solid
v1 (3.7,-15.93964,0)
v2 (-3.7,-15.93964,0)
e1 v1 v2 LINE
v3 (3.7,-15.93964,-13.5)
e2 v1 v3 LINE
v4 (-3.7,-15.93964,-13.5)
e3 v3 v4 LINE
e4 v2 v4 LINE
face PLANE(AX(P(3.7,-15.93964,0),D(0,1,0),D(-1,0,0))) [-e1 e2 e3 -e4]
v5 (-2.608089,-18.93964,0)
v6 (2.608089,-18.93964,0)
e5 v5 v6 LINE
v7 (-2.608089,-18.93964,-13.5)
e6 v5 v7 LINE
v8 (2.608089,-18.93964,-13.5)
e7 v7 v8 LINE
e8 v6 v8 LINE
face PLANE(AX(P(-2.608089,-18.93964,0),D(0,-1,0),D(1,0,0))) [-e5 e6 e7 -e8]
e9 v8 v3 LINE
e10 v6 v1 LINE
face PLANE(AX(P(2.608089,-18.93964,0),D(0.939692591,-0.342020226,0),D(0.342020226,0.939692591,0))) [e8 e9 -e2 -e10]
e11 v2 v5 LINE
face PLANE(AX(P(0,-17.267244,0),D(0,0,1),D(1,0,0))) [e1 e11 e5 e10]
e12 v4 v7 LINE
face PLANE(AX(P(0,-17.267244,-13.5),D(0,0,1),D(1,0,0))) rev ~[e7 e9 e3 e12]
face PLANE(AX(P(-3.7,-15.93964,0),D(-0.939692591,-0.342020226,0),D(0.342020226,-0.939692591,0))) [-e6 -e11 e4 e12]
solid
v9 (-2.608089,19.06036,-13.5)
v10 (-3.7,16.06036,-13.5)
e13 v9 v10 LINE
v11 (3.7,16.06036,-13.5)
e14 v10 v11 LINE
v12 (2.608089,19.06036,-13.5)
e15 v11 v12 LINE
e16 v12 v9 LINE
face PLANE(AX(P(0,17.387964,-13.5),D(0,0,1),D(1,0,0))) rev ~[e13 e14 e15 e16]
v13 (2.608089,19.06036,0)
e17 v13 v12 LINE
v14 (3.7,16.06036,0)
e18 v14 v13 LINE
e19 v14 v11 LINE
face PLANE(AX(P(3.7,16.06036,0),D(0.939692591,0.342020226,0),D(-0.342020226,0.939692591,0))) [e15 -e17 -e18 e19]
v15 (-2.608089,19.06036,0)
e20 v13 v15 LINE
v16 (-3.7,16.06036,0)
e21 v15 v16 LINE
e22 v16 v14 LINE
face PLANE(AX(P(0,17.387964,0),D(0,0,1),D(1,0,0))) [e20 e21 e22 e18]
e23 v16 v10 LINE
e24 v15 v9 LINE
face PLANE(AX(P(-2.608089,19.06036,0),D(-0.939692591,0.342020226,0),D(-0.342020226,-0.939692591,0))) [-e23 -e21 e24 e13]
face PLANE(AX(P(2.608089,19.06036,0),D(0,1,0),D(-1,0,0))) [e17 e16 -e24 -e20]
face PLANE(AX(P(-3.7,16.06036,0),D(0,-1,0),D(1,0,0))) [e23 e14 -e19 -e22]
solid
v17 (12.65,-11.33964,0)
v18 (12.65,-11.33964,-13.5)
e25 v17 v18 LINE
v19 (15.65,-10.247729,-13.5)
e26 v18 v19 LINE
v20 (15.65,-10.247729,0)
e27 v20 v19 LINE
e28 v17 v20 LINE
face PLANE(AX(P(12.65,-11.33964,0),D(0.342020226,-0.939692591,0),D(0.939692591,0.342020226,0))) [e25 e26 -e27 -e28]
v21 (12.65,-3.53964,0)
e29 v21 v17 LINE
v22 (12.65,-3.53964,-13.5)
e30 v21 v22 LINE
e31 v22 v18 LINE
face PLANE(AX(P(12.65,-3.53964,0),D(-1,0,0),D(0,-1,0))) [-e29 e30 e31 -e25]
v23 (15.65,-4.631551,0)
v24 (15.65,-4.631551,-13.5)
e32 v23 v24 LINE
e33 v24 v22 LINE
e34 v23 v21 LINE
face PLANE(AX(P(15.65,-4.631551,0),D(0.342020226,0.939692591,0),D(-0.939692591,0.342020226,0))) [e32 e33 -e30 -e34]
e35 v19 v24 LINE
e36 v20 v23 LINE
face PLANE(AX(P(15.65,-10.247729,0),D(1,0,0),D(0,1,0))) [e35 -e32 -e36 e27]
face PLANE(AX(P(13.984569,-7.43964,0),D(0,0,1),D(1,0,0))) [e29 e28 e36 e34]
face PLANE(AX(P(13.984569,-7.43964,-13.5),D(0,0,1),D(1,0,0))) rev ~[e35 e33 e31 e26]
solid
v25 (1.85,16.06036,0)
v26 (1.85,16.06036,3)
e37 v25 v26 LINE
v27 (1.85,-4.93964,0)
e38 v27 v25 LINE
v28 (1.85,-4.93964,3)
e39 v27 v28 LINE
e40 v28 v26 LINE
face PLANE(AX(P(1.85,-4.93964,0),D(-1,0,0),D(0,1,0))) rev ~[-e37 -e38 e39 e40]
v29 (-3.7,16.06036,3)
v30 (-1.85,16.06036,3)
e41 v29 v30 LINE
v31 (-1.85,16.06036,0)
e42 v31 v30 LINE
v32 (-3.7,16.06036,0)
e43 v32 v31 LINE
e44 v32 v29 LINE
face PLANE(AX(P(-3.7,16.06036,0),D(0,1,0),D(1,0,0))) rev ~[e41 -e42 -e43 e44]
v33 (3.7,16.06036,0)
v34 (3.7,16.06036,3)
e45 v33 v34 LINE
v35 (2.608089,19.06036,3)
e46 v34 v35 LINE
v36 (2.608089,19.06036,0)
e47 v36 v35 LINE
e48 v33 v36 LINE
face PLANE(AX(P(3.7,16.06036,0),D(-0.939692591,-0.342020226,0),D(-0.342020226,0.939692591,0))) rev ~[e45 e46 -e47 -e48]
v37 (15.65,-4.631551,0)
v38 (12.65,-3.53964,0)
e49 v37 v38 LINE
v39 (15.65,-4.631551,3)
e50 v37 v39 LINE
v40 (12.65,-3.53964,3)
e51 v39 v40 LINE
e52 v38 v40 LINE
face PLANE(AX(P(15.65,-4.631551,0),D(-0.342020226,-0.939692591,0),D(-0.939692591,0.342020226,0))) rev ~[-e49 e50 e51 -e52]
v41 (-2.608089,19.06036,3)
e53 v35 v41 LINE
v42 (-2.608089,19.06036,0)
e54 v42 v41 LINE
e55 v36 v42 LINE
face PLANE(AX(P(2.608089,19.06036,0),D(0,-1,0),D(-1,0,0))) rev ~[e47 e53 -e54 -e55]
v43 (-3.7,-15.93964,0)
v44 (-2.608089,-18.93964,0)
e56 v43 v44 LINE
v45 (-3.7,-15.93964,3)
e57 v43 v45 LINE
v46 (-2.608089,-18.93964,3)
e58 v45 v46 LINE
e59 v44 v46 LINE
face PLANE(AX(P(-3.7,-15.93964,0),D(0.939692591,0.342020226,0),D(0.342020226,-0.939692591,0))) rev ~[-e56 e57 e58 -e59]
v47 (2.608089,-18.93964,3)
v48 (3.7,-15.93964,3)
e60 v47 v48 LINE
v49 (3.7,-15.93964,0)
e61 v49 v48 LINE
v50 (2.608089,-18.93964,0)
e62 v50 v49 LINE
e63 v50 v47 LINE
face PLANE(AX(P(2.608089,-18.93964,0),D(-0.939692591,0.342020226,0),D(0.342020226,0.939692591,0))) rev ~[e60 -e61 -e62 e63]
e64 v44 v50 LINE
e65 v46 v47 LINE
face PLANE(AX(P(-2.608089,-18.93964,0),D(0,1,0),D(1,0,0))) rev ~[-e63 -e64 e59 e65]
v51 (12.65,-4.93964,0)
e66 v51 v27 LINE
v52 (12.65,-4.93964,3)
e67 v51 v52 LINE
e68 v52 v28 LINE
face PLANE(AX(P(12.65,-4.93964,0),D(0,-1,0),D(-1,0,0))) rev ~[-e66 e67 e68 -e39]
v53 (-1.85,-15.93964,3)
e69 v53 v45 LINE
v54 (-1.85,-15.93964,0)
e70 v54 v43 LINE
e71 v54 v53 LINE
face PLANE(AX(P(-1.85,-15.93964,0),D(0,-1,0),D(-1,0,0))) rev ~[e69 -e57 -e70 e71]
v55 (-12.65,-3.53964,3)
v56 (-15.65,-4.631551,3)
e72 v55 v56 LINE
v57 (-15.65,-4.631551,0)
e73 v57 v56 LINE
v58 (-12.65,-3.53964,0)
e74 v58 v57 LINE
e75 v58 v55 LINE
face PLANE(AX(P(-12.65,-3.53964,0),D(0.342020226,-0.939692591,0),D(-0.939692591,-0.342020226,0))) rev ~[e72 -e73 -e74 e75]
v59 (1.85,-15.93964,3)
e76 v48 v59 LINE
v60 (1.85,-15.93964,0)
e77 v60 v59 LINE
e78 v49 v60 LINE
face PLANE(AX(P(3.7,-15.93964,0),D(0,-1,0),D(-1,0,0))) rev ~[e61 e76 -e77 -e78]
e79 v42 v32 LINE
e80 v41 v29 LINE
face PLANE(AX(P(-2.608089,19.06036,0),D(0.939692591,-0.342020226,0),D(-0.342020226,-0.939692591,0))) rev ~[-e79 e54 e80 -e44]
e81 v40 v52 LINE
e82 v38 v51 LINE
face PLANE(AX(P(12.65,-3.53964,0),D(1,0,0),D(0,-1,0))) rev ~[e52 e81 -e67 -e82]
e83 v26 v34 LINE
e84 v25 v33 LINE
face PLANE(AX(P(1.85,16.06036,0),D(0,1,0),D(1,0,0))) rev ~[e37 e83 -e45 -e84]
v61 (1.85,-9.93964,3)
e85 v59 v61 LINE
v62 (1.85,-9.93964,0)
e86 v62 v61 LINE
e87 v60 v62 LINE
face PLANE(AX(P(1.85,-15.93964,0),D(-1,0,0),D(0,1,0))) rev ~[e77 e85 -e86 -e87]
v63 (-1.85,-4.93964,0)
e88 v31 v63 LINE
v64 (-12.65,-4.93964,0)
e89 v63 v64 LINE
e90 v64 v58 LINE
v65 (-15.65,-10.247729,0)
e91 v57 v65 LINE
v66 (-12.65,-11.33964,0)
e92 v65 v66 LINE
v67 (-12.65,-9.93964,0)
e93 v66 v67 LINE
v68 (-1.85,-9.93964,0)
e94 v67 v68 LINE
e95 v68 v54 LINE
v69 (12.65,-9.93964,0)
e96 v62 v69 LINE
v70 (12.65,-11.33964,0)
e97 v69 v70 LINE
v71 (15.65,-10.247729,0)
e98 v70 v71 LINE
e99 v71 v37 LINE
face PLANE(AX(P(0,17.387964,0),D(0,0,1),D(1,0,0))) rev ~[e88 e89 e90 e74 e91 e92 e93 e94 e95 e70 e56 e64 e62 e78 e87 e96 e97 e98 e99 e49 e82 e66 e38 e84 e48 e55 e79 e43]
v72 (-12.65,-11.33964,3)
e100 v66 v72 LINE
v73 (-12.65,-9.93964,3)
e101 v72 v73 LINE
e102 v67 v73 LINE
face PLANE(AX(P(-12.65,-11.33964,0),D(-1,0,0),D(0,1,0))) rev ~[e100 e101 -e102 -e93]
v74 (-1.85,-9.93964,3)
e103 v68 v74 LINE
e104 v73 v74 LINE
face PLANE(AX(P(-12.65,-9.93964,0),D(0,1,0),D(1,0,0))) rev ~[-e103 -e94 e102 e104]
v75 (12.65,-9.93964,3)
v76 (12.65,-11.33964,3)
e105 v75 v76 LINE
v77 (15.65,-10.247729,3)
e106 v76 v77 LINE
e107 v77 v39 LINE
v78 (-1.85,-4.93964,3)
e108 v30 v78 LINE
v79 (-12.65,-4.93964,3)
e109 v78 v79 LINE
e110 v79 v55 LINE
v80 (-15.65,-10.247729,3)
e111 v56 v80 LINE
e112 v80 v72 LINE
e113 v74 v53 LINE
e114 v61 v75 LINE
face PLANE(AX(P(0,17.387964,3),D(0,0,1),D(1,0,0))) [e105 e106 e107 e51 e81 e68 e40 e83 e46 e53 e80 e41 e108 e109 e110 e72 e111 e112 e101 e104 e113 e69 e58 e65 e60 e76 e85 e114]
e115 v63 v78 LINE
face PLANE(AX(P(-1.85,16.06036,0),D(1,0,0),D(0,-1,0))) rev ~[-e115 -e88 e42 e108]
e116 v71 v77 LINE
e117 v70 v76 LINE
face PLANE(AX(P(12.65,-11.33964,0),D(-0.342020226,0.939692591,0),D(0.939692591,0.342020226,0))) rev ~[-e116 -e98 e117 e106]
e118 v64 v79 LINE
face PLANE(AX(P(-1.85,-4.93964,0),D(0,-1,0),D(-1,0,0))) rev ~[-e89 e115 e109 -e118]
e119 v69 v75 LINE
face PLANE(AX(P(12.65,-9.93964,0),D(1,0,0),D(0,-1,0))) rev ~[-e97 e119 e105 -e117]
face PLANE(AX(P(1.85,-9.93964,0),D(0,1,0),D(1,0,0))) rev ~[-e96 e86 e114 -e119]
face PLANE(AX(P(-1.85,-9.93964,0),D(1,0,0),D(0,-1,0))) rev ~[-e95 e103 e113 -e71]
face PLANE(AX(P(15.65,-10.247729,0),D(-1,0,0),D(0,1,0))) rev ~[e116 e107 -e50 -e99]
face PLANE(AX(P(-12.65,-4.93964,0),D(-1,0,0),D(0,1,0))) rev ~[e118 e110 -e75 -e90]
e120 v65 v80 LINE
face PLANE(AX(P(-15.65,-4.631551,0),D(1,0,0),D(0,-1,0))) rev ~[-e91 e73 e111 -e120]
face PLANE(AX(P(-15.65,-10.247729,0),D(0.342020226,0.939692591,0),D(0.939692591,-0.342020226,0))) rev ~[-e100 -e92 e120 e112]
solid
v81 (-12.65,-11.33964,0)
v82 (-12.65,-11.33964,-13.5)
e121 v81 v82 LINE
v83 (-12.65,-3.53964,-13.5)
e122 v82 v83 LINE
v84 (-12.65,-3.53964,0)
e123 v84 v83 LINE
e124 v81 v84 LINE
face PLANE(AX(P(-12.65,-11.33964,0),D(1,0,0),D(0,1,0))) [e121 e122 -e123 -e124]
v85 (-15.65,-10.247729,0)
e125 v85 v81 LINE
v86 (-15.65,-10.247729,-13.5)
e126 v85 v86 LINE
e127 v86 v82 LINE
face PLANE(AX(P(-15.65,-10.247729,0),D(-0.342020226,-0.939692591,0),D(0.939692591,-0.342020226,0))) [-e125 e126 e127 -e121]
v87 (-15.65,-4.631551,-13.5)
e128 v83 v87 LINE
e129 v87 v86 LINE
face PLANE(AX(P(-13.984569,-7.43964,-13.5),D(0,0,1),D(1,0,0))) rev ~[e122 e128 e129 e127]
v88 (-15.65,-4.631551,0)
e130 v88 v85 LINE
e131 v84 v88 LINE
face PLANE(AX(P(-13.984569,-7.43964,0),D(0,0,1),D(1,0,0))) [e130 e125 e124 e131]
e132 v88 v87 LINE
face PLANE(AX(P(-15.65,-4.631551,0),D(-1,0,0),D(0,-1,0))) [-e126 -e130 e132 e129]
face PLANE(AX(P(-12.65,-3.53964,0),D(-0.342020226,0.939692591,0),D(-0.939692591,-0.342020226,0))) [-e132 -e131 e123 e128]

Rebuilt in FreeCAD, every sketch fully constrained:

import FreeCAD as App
import Part
import Sketcher

V = App.Vector
Q = App.Units.Quantity


def add_polygon(sketch, points):
    """Adds a closed chain of lines whose ends are joined by coincident constraints."""
    first, n = sketch.GeometryCount, len(points)
    for a, b in zip(points, points[1:] + points[:1]):
        sketch.addGeometry(Part.LineSegment(App.Vector(*a, 0), App.Vector(*b, 0)), False)
    for i in range(n):
        sketch.addConstraint(Sketcher.Constraint("Coincident", first + i, 2, first + (i + 1) % n, 1))

doc = App.newDocument("Part")
params = doc.addObject("Spreadsheet::Sheet", "Params")
for row, (alias, value) in enumerate([
    ("sketch1_width", "7.4 mm"),
    ("sketch1_height", "7.8 mm"),
    ("pad1_length", "13.5 mm"),
    ("sketch2_height", "21 mm"),
    ("sketch2_height2", "6 mm"),
    ("sketch2_width", "10.8 mm"),
    ("sketch2_height3", "1.4 mm"),
    ("sketch2_width2", "1.85 mm"),
    ("pad2_length", "3 mm"),
], start=1):
    params.set(f"A{row}", alias)
    params.set(f"B{row}", "=" + value)
    params.setAlias(f"B{row}", alias)

body = doc.addObject("PartDesign::Body", "Body")
body.AllowCompound = True

# Sketch on XY plane
sketch1 = body.newObject("Sketcher::SketchObject", "Sketch")
sketch1.AttachmentSupport = (doc.getObject("XY_Plane"), [""])
sketch1.MapMode = "FlatFace"
add_polygon(sketch1, [(12.7, -3.5), (12.7, -11.3), (15.7, -10.2), (15.7, -4.6)])  # lines 0-3
add_polygon(sketch1, [(-12.7, -3.5), (-15.7, -4.6), (-15.7, -10.2), (-12.7, -11.3)])  # lines 4-7
add_polygon(sketch1, [(3.7, -15.9), (-3.7, -15.9), (-2.6, -18.9), (2.6, -18.9)])  # lines 8-11
add_polygon(sketch1, [(3.7, 16.1), (2.6, 19.1), (-2.6, 19.1), (-3.7, 16.1)])  # lines 12-15
sketch1.addConstraint(Sketcher.Constraint("Vertical", 0))
sketch1.addConstraint(Sketcher.Constraint("Vertical", 2))
sketch1.addConstraint(Sketcher.Constraint("Vertical", 5))
sketch1.addConstraint(Sketcher.Constraint("Vertical", 7))
sketch1.addConstraint(Sketcher.Constraint("Horizontal", 8))
sketch1.addConstraint(Sketcher.Constraint("Horizontal", 10))
sketch1.addConstraint(Sketcher.Constraint("Horizontal", 13))
sketch1.addConstraint(Sketcher.Constraint("Horizontal", 15))
sketch1.addConstraint(Sketcher.Constraint("Symmetric", 2, 2, 4, 2, -2))
sketch1.addConstraint(Sketcher.Constraint("Symmetric", 0, 2, 6, 2, -2))
sketch1.addConstraint(Sketcher.Constraint("Parallel", 1, 4))
sketch1.addConstraint(Sketcher.Constraint("Parallel", 3, 6))
sketch1.addConstraint(Sketcher.Constraint("Perpendicular", 4, 9))
sketch1.addConstraint(Sketcher.Constraint("Perpendicular", 6, 11))
sketch1.addConstraint(Sketcher.Constraint("Parallel", 9, 12))
sketch1.addConstraint(Sketcher.Constraint("Parallel", 11, 14))
sketch1.addConstraint(Sketcher.Constraint("Horizontal", 1, 2, 5, 2))
sketch1.addConstraint(Sketcher.Constraint("Vertical", 10, 2, 12, 2))
sketch1.addConstraint(Sketcher.Constraint("Vertical", 9, 2, 13, 2))
sketch1.addConstraint(Sketcher.Constraint("Vertical", 8, 2, 14, 2))
sketch1.addConstraint(Sketcher.Constraint("Equal", 6, 9))
sketch1.addConstraint(Sketcher.Constraint("Angle", 1, Q("20.000005 deg")))
sketch1.addConstraint(Sketcher.Constraint("DistanceX", 8, 2, 8, 1, Q("7.4 mm")))
sketch1.addConstraint(Sketcher.Constraint("DistanceY", 0, 2, 0, 1, Q("7.8 mm")))
sketch1.addConstraint(Sketcher.Constraint("DistanceX", 0, 2, 1, 2, Q("3 mm")))
sketch1.addConstraint(Sketcher.Constraint("DistanceX", 8, 2, -1, 1, Q("3.7 mm")))
sketch1.addConstraint(Sketcher.Constraint("DistanceX", 4, 2, 3, 2, Q("28.3 mm")))
sketch1.addConstraint(Sketcher.Constraint("DistanceY", 8, 2, 6, 2, Q("4.6 mm")))
sketch1.addConstraint(Sketcher.Constraint("DistanceY", 3, 2, 12, 2, Q("22.6 mm")))
sketch1.addConstraint(Sketcher.Constraint("DistanceY", 0, 2, -1, 1, Q("11.33964 mm")))
sketch1.setExpression("Constraints[38]", "Params.sketch1_width")
sketch1.setExpression("Constraints[39]", "Params.sketch1_height")
pad1 = body.newObject("PartDesign::Pad", "Pad")
pad1.Profile = sketch1
pad1.setExpression("Length", "Params.pad1_length")
pad1.Reversed = True
body2 = doc.addObject("PartDesign::Body", "Body001")

# Sketch on XY plane
sketch2 = body2.newObject("Sketcher::SketchObject", "Sketch001")
sketch2.AttachmentSupport = (doc.getObject("XY_Plane001"), [""])
sketch2.MapMode = "FlatFace"
add_polygon(sketch2, [(3.7, 16.1), (2.6, 19.1), (-2.6, 19.1), (-3.7, 16.1), (-1.9, 16.1), (-1.9, -4.9), (-12.7, -4.9), (-12.7, -3.5), (-15.7, -4.6), (-15.7, -10.2), (-12.7, -11.3), (-12.7, -9.9), (-1.9, -9.9), (-1.9, -15.9), (-3.7, -15.9), (-2.6, -18.9), (2.6, -18.9), (3.7, -15.9), (1.9, -15.9), (1.9, -9.9), (12.7, -9.9), (12.7, -11.3), (15.7, -10.2), (15.7, -4.6), (12.7, -3.5), (12.7, -4.9), (1.9, -4.9), (1.9, 16.1)])  # lines 0-27
sketch2.addConstraint(Sketcher.Constraint("Horizontal", 1))
sketch2.addConstraint(Sketcher.Constraint("Horizontal", 3))
sketch2.addConstraint(Sketcher.Constraint("Vertical", 4))
sketch2.addConstraint(Sketcher.Constraint("Horizontal", 5))
sketch2.addConstraint(Sketcher.Constraint("Vertical", 6))
sketch2.addConstraint(Sketcher.Constraint("Vertical", 8))
sketch2.addConstraint(Sketcher.Constraint("Vertical", 10))
sketch2.addConstraint(Sketcher.Constraint("Horizontal", 11))
sketch2.addConstraint(Sketcher.Constraint("Vertical", 12))
sketch2.addConstraint(Sketcher.Constraint("Horizontal", 13))
sketch2.addConstraint(Sketcher.Constraint("Horizontal", 15))
sketch2.addConstraint(Sketcher.Constraint("Horizontal", 17))
sketch2.addConstraint(Sketcher.Constraint("Vertical", 18))
sketch2.addConstraint(Sketcher.Constraint("Horizontal", 19))
sketch2.addConstraint(Sketcher.Constraint("Vertical", 20))
sketch2.addConstraint(Sketcher.Constraint("Vertical", 22))
sketch2.addConstraint(Sketcher.Constraint("Vertical", 24))
sketch2.addConstraint(Sketcher.Constraint("Horizontal", 25))
sketch2.addConstraint(Sketcher.Constraint("Vertical", 26))
sketch2.addConstraint(Sketcher.Constraint("Horizontal", 27))
sketch2.addConstraint(Sketcher.Constraint("Symmetric", 13, 2, 16, 2, -2))
sketch2.addConstraint(Sketcher.Constraint("Symmetric", 11, 2, 18, 2, -2))
sketch2.addConstraint(Sketcher.Constraint("Symmetric", 9, 2, 20, 2, -2))
sketch2.addConstraint(Sketcher.Constraint("Symmetric", 8, 2, 21, 2, -2))
sketch2.addConstraint(Sketcher.Constraint("Symmetric", 6, 2, 23, 2, -2))
sketch2.addConstraint(Sketcher.Constraint("Symmetric", 4, 2, 25, 2, -2))
sketch2.addConstraint(Sketcher.Constraint("Symmetric", 2, 2, 27, 2, -2))
sketch2.addConstraint(Sketcher.Constraint("Perpendicular", 0, 7))
sketch2.addConstraint(Sketcher.Constraint("Perpendicular", 2, 9))
sketch2.addConstraint(Sketcher.Constraint("Perpendicular", 7, 14))
sketch2.addConstraint(Sketcher.Constraint("Perpendicular", 9, 16))
sketch2.addConstraint(Sketcher.Constraint("Perpendicular", 14, 21))
sketch2.addConstraint(Sketcher.Constraint("Perpendicular", 16, 23))
sketch2.addConstraint(Sketcher.Constraint("Vertical", 6, 2, 9, 2))
sketch2.addConstraint(Sketcher.Constraint("Vertical", 4, 2, 11, 2))
sketch2.addConstraint(Sketcher.Constraint("Vertical", 2, 2, 13, 2))
sketch2.addConstraint(Sketcher.Constraint("Vertical", 1, 2, 14, 2))
sketch2.addConstraint(Sketcher.Constraint("Equal", 6, 10))
sketch2.addConstraint(Sketcher.Constraint("Equal", 2, 7))
sketch2.addConstraint(Sketcher.Constraint("DistanceY", 4, 2, 4, 1, Q("21 mm")))
sketch2.addConstraint(Sketcher.Constraint("DistanceY", 12, 2, 12, 1, Q("6 mm")))
sketch2.addConstraint(Sketcher.Constraint("Angle", 0, Q("110.000005 deg")))
sketch2.addConstraint(Sketcher.Constraint("DistanceX", 5, 2, 5, 1, Q("10.8 mm")))
sketch2.addConstraint(Sketcher.Constraint("DistanceY", 6, 1, 6, 2, Q("1.4 mm")))
sketch2.addConstraint(Sketcher.Constraint("DistanceY", 2, 2, 1, 2, Q("3 mm")))
sketch2.addConstraint(Sketcher.Constraint("DistanceY", 10, 2, 5, 2, Q("5 mm")))
sketch2.addConstraint(Sketcher.Constraint("DistanceX", 3, 1, 3, 2, Q("1.85 mm")))
sketch2.addConstraint(Sketcher.Constraint("DistanceX", 2, 2, -1, 1, Q("3.7 mm")))
sketch2.addConstraint(Sketcher.Constraint("DistanceY", -1, 1, 0, 2, Q("19.06036 mm")))
sketch2.setExpression("Constraints[67]", "Params.sketch2_height")
sketch2.setExpression("Constraints[68]", "Params.sketch2_height2")
sketch2.setExpression("Constraints[70]", "Params.sketch2_width")
sketch2.setExpression("Constraints[71]", "Params.sketch2_height3")
sketch2.setExpression("Constraints[74]", "Params.sketch2_width2")
pad2 = body2.newObject("PartDesign::Pad", "Pad001")
pad2.Profile = sketch2
pad2.setExpression("Length", "Params.pad2_length")

doc.recompute()
